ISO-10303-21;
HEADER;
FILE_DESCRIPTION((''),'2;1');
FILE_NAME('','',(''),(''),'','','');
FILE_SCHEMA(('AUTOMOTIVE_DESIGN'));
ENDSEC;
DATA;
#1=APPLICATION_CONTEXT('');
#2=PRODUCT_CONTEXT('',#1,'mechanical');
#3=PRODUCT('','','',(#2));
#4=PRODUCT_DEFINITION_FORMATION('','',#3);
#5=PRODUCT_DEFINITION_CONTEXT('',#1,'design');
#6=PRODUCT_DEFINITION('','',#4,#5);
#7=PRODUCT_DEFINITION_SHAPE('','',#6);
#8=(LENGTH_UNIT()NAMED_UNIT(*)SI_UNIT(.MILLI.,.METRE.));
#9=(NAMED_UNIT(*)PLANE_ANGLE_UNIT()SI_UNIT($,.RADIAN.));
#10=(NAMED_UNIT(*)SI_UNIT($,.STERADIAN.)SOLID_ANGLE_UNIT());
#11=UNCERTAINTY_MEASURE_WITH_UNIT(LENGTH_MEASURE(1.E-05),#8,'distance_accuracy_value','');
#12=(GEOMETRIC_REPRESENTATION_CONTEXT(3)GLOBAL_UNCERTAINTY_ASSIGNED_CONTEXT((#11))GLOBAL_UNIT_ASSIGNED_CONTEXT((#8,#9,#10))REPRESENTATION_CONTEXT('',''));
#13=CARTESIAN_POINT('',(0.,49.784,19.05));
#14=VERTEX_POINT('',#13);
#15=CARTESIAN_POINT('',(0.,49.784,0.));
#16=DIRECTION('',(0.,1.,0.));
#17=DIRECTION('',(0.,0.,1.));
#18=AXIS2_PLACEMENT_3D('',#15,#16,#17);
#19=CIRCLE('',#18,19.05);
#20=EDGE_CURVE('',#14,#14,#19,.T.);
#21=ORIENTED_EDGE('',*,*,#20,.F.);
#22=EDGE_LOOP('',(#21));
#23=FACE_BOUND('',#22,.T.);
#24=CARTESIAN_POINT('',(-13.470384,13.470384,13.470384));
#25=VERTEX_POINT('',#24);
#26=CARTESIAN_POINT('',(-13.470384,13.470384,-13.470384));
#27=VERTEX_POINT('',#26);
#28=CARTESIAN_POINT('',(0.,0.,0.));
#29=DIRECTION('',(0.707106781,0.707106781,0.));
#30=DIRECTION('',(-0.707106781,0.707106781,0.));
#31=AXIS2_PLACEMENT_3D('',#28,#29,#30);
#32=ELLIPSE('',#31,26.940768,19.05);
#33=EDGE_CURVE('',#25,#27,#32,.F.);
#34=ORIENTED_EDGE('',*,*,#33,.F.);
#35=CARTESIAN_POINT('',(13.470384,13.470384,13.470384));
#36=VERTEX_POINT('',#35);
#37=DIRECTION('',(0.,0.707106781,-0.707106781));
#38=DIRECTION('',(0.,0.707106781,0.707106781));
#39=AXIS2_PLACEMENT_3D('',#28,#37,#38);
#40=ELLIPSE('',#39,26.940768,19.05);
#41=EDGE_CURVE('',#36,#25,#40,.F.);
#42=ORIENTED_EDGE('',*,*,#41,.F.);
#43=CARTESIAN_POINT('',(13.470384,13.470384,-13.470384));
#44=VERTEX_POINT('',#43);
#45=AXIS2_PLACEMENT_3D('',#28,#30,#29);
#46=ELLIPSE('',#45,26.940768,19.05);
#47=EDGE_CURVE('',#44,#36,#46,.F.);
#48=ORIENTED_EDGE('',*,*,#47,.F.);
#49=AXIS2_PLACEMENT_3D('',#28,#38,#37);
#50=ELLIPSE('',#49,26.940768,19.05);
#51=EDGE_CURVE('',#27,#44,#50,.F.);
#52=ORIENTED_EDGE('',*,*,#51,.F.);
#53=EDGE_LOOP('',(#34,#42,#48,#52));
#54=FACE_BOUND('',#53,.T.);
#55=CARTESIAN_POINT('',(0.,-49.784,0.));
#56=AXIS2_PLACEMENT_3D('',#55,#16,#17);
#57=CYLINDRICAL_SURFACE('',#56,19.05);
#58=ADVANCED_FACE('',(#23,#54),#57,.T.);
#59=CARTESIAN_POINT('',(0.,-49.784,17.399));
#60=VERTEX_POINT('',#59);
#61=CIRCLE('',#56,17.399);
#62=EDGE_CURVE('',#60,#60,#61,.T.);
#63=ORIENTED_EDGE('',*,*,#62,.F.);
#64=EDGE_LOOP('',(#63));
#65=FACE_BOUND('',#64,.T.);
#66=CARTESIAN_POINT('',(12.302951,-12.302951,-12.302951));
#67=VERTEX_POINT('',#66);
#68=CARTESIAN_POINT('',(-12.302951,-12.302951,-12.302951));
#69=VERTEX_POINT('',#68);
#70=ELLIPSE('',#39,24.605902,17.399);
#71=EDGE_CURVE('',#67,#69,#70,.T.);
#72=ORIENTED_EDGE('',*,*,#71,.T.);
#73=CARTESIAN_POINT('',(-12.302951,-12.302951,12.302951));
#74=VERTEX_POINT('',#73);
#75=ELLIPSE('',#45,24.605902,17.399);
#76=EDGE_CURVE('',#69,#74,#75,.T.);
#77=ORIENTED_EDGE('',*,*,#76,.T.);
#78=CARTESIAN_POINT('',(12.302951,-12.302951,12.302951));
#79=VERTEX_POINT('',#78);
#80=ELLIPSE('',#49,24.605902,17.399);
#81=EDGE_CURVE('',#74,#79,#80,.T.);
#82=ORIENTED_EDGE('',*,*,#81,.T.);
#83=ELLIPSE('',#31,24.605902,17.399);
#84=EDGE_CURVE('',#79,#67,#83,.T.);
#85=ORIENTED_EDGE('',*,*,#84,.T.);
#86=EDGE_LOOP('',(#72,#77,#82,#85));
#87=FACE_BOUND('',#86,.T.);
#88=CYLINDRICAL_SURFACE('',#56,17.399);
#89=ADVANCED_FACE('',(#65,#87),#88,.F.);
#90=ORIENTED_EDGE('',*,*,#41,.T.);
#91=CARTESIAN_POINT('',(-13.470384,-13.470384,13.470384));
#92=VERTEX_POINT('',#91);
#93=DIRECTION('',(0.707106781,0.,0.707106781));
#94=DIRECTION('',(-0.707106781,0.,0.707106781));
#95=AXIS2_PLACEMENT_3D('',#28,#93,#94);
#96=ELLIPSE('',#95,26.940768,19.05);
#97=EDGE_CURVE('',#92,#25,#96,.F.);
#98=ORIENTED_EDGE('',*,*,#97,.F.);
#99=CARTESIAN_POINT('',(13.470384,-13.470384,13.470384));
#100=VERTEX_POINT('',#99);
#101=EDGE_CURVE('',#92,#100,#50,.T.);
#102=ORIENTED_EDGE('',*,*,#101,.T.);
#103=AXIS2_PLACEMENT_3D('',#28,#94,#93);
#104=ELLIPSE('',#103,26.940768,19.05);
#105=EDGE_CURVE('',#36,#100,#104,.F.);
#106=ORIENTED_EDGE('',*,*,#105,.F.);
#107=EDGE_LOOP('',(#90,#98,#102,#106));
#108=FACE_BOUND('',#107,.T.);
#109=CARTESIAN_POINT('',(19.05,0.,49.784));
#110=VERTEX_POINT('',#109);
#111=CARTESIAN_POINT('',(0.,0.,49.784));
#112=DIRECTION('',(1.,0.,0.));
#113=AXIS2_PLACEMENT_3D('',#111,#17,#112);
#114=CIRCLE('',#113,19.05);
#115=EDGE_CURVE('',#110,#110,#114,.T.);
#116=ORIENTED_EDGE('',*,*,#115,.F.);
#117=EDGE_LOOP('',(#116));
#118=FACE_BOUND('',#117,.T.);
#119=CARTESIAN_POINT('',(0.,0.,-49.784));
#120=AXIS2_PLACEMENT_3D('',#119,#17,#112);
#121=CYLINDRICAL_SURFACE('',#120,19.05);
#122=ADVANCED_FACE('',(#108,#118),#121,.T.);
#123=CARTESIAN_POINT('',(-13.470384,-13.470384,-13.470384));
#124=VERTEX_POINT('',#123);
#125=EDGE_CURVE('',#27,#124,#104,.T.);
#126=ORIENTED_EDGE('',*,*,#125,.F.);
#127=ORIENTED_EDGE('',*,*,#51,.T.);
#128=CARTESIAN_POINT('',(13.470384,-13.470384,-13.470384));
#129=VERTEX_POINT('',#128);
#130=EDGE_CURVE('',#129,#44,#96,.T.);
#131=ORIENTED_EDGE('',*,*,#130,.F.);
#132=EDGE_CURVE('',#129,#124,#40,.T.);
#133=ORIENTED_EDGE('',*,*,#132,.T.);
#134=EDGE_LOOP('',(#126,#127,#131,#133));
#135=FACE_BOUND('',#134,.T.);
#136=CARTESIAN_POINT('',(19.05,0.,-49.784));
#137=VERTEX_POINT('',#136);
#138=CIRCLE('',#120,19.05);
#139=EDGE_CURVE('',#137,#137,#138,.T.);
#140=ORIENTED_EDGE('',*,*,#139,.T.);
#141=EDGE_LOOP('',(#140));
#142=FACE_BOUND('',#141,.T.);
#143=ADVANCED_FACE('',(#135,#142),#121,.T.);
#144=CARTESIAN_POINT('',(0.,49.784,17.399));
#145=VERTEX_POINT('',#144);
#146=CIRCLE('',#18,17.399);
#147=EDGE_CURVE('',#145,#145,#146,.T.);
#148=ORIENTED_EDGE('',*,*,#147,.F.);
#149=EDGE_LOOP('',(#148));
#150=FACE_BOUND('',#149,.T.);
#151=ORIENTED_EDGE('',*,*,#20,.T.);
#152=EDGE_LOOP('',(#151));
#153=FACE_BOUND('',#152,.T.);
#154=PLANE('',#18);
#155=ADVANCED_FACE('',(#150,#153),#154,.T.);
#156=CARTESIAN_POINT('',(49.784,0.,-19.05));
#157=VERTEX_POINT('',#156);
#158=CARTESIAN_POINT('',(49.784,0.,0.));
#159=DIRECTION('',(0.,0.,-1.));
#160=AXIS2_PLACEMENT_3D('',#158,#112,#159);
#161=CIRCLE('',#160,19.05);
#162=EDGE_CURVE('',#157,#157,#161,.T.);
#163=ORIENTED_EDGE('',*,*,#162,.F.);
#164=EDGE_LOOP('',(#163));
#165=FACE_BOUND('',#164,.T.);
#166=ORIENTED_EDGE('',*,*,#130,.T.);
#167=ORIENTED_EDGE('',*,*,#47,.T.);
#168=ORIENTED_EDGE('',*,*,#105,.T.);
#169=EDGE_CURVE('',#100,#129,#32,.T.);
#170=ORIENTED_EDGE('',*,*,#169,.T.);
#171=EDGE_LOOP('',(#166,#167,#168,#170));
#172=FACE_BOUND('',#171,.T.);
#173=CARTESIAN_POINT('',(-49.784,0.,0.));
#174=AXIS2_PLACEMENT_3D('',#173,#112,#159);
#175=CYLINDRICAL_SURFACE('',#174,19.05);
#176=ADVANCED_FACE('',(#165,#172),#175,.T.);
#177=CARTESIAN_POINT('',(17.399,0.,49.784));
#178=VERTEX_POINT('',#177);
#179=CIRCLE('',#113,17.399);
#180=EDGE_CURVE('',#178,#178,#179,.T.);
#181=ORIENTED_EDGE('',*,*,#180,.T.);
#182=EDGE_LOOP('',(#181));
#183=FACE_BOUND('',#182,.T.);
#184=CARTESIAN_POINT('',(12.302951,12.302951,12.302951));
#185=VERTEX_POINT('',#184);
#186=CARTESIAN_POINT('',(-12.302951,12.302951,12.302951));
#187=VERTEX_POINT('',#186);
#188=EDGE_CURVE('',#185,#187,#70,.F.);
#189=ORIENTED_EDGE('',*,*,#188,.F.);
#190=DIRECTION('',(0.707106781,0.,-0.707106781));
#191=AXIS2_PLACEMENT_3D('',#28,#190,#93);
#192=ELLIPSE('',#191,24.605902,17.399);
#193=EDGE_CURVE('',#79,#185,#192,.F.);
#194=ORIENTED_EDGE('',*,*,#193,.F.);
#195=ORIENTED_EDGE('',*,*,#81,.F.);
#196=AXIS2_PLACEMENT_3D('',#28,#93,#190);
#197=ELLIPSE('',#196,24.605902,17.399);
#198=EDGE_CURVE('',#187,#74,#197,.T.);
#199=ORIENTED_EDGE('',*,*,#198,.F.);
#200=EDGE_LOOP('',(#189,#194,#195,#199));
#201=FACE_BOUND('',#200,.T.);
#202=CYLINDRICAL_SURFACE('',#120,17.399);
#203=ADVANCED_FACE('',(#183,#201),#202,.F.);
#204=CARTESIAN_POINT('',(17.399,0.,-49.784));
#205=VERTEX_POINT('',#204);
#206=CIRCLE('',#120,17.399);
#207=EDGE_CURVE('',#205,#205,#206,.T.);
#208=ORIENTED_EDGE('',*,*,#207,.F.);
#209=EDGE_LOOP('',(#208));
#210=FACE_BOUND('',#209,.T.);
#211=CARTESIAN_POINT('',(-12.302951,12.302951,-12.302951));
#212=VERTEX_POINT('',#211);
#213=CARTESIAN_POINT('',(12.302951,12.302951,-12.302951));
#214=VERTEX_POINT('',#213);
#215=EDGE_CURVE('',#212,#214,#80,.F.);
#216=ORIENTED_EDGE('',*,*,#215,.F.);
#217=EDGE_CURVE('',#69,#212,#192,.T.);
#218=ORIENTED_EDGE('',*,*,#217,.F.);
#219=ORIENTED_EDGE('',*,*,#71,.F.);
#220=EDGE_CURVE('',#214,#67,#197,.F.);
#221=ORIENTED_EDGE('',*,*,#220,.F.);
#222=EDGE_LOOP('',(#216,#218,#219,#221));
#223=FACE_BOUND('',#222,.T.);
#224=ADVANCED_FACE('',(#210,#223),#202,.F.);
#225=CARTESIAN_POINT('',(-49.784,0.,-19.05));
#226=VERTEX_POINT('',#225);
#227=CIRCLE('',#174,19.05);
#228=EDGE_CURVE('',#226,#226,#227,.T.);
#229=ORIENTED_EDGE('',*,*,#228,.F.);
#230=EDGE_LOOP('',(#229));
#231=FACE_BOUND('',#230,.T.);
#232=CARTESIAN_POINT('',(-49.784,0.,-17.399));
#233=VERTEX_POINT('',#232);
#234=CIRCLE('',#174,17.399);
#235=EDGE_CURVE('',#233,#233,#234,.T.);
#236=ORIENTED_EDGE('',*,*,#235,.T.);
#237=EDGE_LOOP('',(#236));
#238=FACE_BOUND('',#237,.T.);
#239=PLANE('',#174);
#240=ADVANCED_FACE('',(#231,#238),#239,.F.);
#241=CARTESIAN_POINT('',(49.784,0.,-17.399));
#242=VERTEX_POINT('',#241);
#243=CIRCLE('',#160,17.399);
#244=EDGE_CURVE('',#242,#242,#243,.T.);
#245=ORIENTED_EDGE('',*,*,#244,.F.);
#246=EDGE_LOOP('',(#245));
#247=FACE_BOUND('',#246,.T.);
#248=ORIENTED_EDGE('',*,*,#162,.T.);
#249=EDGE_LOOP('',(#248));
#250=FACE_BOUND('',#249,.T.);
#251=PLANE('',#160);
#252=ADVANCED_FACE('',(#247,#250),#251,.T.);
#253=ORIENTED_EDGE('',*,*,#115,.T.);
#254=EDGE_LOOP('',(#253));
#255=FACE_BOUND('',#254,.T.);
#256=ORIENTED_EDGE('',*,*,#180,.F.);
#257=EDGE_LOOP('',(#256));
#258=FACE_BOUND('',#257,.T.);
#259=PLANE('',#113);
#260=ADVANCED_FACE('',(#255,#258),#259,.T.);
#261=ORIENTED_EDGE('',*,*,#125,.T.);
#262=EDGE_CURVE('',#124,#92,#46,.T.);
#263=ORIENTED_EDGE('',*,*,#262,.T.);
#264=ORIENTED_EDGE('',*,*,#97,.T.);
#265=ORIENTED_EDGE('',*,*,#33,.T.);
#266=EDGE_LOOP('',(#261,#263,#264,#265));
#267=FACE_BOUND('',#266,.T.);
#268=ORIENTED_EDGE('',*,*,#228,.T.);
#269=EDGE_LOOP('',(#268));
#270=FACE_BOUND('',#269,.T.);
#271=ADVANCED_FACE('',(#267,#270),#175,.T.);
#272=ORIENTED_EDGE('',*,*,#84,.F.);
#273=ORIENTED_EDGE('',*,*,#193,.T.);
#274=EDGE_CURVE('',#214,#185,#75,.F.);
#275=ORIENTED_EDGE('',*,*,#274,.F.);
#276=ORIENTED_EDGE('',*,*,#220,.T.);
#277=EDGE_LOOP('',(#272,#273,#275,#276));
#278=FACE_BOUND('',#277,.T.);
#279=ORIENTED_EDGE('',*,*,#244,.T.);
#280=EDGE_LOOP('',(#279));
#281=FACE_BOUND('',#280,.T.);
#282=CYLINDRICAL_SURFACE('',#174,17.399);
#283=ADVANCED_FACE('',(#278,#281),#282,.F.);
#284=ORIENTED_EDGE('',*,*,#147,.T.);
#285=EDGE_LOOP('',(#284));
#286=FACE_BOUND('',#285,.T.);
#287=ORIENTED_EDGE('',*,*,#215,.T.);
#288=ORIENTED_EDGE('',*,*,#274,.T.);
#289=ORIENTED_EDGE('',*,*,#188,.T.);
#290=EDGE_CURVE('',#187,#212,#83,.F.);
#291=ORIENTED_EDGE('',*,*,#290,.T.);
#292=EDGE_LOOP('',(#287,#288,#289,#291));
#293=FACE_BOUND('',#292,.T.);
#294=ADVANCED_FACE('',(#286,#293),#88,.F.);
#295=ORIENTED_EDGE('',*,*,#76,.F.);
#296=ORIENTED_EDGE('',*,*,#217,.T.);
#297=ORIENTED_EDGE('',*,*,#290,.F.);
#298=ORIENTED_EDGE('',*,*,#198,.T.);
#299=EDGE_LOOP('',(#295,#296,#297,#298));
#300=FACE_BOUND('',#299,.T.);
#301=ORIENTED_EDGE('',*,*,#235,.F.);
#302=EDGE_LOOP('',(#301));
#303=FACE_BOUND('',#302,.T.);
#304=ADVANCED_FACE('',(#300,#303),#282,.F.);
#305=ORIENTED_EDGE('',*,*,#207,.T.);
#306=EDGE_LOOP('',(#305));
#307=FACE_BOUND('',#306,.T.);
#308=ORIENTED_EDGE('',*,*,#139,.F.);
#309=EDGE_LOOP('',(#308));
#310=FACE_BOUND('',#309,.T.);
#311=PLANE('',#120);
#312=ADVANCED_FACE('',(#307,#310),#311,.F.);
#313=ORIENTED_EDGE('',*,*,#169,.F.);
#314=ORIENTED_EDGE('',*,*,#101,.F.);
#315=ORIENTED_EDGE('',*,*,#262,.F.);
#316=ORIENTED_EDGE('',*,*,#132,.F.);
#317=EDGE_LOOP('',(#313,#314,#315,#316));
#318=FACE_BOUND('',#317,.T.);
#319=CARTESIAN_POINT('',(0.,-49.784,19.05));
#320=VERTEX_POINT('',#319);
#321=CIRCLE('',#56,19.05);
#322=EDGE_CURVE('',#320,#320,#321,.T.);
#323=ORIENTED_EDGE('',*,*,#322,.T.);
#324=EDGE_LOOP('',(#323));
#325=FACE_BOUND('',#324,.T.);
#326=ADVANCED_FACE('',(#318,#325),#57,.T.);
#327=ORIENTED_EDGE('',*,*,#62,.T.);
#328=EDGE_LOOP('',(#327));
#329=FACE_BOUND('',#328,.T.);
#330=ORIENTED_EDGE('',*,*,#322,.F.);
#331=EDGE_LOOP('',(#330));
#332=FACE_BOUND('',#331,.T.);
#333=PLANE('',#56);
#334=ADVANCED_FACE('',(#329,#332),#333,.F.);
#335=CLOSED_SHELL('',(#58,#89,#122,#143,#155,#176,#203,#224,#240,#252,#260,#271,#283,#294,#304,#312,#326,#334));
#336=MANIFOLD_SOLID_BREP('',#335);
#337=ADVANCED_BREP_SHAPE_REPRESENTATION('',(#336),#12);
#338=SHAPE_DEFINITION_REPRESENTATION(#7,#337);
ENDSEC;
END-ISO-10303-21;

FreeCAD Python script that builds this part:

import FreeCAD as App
import Part
import Sketcher

V = App.Vector
Q = App.Units.Quantity

doc = App.newDocument("Part")
body = doc.addObject("PartDesign::Body", "Body")

# Sketch on XZ plane
sketch1 = body.newObject("Sketcher::SketchObject", "Sketch")
sketch1.AttachmentSupport = (doc.getObject("XZ_Plane"), [""])
sketch1.MapMode = "FlatFace"
sketch1.addGeometry(Part.Circle(V(0, 0, 0), V(0, 0, 1), 19.05), False)
sketch1.addConstraint([
    Sketcher.Constraint("Coincident", 0, 3, -1, 1),
    Sketcher.Constraint("Diameter", 0, Q("1.5 in")),
])
pad1 = body.newObject("PartDesign::Pad", "Pad")
pad1.Profile = sketch1
pad1.Type = "TwoLengths"
pad1.Length = Q("1.96 in")
pad1.Length2 = Q("1.96 in")
pad1.Reversed = True

# Sketch on XY plane
sketch2 = body.newObject("Sketcher::SketchObject", "Sketch001")
sketch2.AttachmentSupport = (doc.getObject("XY_Plane"), [""])
sketch2.MapMode = "FlatFace"
sketch2.addGeometry(Part.Circle(V(0, 0, 0), V(0, 0, 1), 19.05), False)
sketch2.addConstraint([
    Sketcher.Constraint("Coincident", 0, 3, -1, 1),
    Sketcher.Constraint("Diameter", 0, Q("1.5 in")),
])
pad2 = body.newObject("PartDesign::Pad", "Pad001")
pad2.Profile = sketch2
pad2.Type = "TwoLengths"
pad2.Length = Q("1.96 in")
pad2.Length2 = Q("1.96 in")

# Sketch on YZ plane
sketch3 = body.newObject("Sketcher::SketchObject", "Sketch002")
sketch3.AttachmentSupport = (doc.getObject("YZ_Plane"), [""])
sketch3.MapMode = "FlatFace"
sketch3.addGeometry(Part.Circle(V(0, 0, 0), V(0, 0, 1), 19.05), False)
sketch3.addConstraint([
    Sketcher.Constraint("Coincident", 0, 3, -1, 1),
    Sketcher.Constraint("Diameter", 0, Q("1.5 in")),
])
pad3 = body.newObject("PartDesign::Pad", "Pad002")
pad3.Profile = sketch3
pad3.Type = "TwoLengths"
pad3.Length = Q("1.96 in")
pad3.Length2 = Q("1.96 in")

# Sketch on XZ plane
sketch4 = body.newObject("Sketcher::SketchObject", "Sketch003")
sketch4.AttachmentSupport = (doc.getObject("XZ_Plane"), [""])
sketch4.MapMode = "FlatFace"
sketch4.addGeometry(Part.Circle(V(0, 0, 0), V(0, 0, 1), 17.399), False)
sketch4.addConstraint([
    Sketcher.Constraint("Coincident", 0, 3, -1, 1),
    Sketcher.Constraint("Diameter", 0, Q("1.37 in")),
])
pocket1 = body.newObject("PartDesign::Pocket", "Pocket")
pocket1.Profile = sketch4
pocket1.Type = "ThroughAll"
pocket1.Midplane = True

# Sketch on YZ plane
sketch5 = body.newObject("Sketcher::SketchObject", "Sketch004")
sketch5.AttachmentSupport = (doc.getObject("YZ_Plane"), [""])
sketch5.MapMode = "FlatFace"
sketch5.addGeometry(Part.Circle(V(0, 0, 0), V(0, 0, 1), 17.399), False)
sketch5.addConstraint([
    Sketcher.Constraint("Coincident", 0, 3, -1, 1),
    Sketcher.Constraint("Diameter", 0, Q("1.37 in")),
])
pocket2 = body.newObject("PartDesign::Pocket", "Pocket001")
pocket2.Profile = sketch5
pocket2.Type = "ThroughAll"
pocket2.Midplane = True

# Sketch on XY plane
sketch6 = body.newObject("Sketcher::SketchObject", "Sketch005")
sketch6.AttachmentSupport = (doc.getObject("XY_Plane"), [""])
sketch6.MapMode = "FlatFace"
sketch6.addGeometry(Part.Circle(V(0, 0, 0), V(0, 0, 1), 17.399), False)
sketch6.addConstraint([
    Sketcher.Constraint("Coincident", 0, 3, -1, 1),
    Sketcher.Constraint("Diameter", 0, Q("1.37 in")),
])
pocket3 = body.newObject("PartDesign::Pocket", "Pocket002")
pocket3.Profile = sketch6
pocket3.Type = "ThroughAll"
pocket3.Midplane = True

doc.recompute()
